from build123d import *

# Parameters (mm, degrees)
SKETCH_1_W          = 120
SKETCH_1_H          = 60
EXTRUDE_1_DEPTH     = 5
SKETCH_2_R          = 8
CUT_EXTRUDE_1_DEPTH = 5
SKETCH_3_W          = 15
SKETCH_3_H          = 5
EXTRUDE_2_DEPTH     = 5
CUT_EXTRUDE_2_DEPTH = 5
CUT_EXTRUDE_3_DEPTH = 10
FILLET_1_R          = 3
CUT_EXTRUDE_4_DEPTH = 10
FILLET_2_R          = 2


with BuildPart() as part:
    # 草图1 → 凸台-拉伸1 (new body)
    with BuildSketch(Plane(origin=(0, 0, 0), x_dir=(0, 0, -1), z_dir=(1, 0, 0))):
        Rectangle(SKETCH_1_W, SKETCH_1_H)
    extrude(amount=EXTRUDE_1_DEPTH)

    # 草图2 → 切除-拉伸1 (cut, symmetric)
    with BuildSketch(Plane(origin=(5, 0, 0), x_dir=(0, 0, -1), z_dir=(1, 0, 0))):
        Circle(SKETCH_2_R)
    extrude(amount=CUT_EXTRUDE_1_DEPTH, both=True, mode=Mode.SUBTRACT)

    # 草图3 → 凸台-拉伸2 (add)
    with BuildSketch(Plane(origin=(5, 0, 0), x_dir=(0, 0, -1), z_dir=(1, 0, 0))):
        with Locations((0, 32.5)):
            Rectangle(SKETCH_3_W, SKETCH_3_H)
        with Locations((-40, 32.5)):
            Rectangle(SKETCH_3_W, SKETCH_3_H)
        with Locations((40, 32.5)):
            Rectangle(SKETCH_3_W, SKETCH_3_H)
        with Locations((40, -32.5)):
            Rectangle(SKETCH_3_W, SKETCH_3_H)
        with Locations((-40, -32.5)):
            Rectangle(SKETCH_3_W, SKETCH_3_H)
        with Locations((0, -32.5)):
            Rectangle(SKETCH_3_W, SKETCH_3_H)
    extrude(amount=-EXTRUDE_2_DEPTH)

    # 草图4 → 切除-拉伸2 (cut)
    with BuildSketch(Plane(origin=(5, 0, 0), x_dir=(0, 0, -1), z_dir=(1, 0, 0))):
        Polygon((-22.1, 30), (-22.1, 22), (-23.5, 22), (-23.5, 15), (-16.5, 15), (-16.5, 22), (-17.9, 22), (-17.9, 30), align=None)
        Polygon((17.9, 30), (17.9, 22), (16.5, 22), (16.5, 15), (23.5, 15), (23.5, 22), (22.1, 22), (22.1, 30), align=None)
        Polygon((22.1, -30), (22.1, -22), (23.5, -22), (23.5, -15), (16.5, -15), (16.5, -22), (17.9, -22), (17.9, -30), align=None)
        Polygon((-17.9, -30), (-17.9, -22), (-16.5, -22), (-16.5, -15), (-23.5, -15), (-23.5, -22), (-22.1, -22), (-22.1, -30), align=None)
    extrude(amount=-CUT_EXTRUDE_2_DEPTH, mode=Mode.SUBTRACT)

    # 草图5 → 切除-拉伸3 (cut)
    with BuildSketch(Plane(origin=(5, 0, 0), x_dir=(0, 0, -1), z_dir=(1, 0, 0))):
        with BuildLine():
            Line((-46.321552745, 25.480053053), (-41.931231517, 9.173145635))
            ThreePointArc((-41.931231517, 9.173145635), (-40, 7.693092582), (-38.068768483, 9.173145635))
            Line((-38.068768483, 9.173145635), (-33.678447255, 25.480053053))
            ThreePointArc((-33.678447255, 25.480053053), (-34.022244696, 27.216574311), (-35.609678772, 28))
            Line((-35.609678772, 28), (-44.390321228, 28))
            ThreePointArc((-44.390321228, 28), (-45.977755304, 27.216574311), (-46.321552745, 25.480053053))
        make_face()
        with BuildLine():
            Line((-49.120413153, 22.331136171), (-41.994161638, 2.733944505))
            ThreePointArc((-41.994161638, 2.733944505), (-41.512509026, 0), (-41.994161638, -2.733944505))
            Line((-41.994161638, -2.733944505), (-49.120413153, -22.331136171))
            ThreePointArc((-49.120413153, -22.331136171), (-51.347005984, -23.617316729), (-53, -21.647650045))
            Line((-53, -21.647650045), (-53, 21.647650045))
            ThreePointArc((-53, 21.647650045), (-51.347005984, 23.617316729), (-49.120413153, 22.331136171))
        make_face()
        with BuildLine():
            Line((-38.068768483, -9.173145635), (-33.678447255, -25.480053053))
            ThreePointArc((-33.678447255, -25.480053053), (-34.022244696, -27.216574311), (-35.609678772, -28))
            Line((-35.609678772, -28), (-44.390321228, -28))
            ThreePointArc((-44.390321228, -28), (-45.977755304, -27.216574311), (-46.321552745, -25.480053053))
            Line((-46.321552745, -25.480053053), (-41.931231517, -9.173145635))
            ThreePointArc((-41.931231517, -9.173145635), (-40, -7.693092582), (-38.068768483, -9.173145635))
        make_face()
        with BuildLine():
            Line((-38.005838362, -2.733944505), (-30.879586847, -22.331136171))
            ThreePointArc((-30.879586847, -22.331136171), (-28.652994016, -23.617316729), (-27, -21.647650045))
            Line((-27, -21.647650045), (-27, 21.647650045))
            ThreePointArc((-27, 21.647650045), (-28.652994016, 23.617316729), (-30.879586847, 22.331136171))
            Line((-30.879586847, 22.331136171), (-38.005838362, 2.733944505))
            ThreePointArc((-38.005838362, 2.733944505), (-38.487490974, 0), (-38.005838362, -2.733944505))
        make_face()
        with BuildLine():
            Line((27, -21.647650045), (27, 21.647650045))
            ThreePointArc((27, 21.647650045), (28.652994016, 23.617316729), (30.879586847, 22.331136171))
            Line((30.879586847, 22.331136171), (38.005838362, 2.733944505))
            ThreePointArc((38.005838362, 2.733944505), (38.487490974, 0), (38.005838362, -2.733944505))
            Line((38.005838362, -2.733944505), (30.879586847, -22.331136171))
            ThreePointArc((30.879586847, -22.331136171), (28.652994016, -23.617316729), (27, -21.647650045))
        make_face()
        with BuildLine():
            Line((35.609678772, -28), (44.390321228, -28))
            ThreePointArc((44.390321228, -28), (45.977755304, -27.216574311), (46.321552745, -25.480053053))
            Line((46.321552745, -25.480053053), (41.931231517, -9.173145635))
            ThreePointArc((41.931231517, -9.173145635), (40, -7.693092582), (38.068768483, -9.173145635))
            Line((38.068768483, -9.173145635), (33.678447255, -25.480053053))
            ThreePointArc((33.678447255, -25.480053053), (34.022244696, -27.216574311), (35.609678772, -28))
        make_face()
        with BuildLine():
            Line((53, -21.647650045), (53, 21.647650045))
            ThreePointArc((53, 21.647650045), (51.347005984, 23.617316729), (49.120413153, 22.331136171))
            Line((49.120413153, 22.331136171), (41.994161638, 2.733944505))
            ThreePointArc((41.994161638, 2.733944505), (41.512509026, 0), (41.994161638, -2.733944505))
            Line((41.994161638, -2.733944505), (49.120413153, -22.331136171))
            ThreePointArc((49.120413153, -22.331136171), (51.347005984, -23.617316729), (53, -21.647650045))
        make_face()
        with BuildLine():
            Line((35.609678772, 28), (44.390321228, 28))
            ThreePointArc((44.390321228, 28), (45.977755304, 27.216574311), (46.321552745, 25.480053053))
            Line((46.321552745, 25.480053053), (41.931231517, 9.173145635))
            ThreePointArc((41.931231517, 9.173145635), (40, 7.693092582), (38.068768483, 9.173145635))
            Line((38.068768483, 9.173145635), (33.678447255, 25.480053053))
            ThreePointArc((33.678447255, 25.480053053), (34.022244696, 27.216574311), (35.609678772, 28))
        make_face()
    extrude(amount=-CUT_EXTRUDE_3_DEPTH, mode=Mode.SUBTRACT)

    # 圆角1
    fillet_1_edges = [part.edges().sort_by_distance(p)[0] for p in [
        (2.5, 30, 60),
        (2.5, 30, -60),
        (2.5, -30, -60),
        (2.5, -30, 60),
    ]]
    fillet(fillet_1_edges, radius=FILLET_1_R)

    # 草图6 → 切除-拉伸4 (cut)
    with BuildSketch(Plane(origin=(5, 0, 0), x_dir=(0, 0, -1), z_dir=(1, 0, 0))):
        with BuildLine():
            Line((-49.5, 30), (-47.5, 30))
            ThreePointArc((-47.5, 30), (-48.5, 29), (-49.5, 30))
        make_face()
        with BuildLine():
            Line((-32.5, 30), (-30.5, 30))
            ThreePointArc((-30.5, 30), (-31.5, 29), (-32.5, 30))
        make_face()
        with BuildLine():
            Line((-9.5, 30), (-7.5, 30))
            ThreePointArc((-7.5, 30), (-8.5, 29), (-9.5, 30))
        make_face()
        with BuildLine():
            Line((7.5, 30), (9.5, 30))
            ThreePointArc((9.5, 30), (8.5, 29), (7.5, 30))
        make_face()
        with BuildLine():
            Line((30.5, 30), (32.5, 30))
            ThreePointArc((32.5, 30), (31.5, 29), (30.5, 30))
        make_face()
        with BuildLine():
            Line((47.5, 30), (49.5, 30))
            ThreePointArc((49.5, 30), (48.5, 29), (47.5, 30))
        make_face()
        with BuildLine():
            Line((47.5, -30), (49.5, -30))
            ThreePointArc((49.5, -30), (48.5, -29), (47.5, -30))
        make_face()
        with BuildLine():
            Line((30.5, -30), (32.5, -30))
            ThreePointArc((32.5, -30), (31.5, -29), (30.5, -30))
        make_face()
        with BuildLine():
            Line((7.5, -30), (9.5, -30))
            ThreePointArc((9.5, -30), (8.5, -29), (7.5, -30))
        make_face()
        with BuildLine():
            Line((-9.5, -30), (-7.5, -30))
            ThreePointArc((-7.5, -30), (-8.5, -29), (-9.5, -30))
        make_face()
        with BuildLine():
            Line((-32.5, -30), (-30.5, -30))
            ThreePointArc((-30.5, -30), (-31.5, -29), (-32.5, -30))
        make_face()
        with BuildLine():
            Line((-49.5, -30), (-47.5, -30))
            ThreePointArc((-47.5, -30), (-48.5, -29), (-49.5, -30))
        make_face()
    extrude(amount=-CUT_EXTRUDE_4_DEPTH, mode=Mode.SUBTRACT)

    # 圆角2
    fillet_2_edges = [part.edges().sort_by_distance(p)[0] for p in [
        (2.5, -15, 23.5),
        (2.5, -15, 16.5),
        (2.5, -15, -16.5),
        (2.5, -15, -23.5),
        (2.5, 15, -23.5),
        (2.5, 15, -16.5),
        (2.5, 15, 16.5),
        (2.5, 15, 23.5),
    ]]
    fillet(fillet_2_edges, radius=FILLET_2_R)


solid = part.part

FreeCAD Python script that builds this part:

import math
import FreeCAD as App
import Part
import Sketcher

V = App.Vector
Q = App.Units.Quantity


def edges_at(feature, points):
    """Names of the edges that pass closest to the given points."""
    edges = feature.Shape.Edges
    near = lambda p: min(range(len(edges)), key=lambda i: edges[i].distToShape(Part.Vertex(*p))[0])
    return sorted({f"Edge{near(p) + 1}" for p in points})

doc = App.newDocument("Part")
body = doc.addObject("PartDesign::Body", "Body")

# Sketch on YZ plane
sketch1 = doc.addObject("Sketcher::SketchObject", "Sketch")
body.addObject(sketch1)
sketch1.AttachmentSupport = (doc.YZ_Plane, [""])
sketch1.MapMode = "FlatFace"
sketch1.addGeometry([
    Part.LineSegment(V(30, 60, 0), V(-30, 60, 0)),
    Part.LineSegment(V(-30, 60, 0), V(-30, -60, 0)),
    Part.LineSegment(V(-30, -60, 0), V(30, -60, 0)),
    Part.LineSegment(V(30, -60, 0), V(30, 60, 0)),
], False)
sketch1.addConstraint([
    Sketcher.Constraint("Coincident", 0, 2, 1, 1),
    Sketcher.Constraint("Coincident", 1, 2, 2, 1),
    Sketcher.Constraint("Coincident", 2, 2, 3, 1),
    Sketcher.Constraint("Coincident", 3, 2, 0, 1),
    Sketcher.Constraint("Horizontal", 0),
    Sketcher.Constraint("Vertical", 1),
    Sketcher.Constraint("Horizontal", 2),
    Sketcher.Constraint("Vertical", 3),
    Sketcher.Constraint("Symmetric", 0, 2, 2, 2, -1, 1),
    Sketcher.Constraint("DistanceX", 0, 2, 0, 1, Q("60 mm")),
    Sketcher.Constraint("DistanceY", 1, 2, 1, 1, Q("120 mm")),
])
pad1 = doc.addObject("PartDesign::Pad", "Pad")
body.addObject(pad1)
pad1.Profile = sketch1
pad1.Length = 5

# Sketch on YZ plane
sketch2 = doc.addObject("Sketcher::SketchObject", "Sketch001")
body.addObject(sketch2)
sketch2.AttachmentSupport = (doc.YZ_Plane, [""])
sketch2.MapMode = "FlatFace"
sketch2.AttachmentOffset = App.Placement(V(0, 0, 5), App.Rotation())
sketch2.addGeometry(Part.Circle(V(0, 0, 0), V(0, 0, 1), 8), False)
sketch2.addConstraint([
    Sketcher.Constraint("Coincident", 0, 3, -1, 1),
    Sketcher.Constraint("Diameter", 0, Q("16 mm")),
])
pocket1 = doc.addObject("PartDesign::Pocket", "Pocket")
body.addObject(pocket1)
pocket1.Profile = sketch2
pocket1.Length = 10
pocket1.Midplane = True

# Sketch on YZ plane
sketch3 = doc.addObject("Sketcher::SketchObject", "Sketch002")
body.addObject(sketch3)
sketch3.AttachmentSupport = (doc.YZ_Plane, [""])
sketch3.MapMode = "FlatFace"
sketch3.AttachmentOffset = App.Placement(V(0, 0, 5), App.Rotation())
sketch3.addGeometry([
    Part.LineSegment(V(35, 7.5, 0), V(30, 7.5, 0)),  # 0
    Part.LineSegment(V(30, 7.5, 0), V(30, -7.5, 0)),  # 1
    Part.LineSegment(V(30, -7.5, 0), V(35, -7.5, 0)),  # 2
    Part.LineSegment(V(35, -7.5, 0), V(35, 7.5, 0)),  # 3
    Part.LineSegment(V(35, 47.5, 0), V(30, 47.5, 0)),  # 4
    Part.LineSegment(V(30, 47.5, 0), V(30, 32.5, 0)),  # 5
    Part.LineSegment(V(30, 32.5, 0), V(35, 32.5, 0)),  # 6
    Part.LineSegment(V(35, 32.5, 0), V(35, 47.5, 0)),  # 7
    Part.LineSegment(V(35, -32.5, 0), V(30, -32.5, 0)),  # 8
    Part.LineSegment(V(30, -32.5, 0), V(30, -47.5, 0)),  # 9
    Part.LineSegment(V(30, -47.5, 0), V(35, -47.5, 0)),  # 10
    Part.LineSegment(V(35, -47.5, 0), V(35, -32.5, 0)),  # 11
    Part.LineSegment(V(-30, -32.5, 0), V(-35, -32.5, 0)),  # 12
    Part.LineSegment(V(-35, -32.5, 0), V(-35, -47.5, 0)),  # 13
    Part.LineSegment(V(-35, -47.5, 0), V(-30, -47.5, 0)),  # 14
    Part.LineSegment(V(-30, -47.5, 0), V(-30, -32.5, 0)),  # 15
    Part.LineSegment(V(-30, 47.5, 0), V(-35, 47.5, 0)),  # 16
    Part.LineSegment(V(-35, 47.5, 0), V(-35, 32.5, 0)),  # 17
    Part.LineSegment(V(-35, 32.5, 0), V(-30, 32.5, 0)),  # 18
    Part.LineSegment(V(-30, 32.5, 0), V(-30, 47.5, 0)),  # 19
    Part.LineSegment(V(-30, 7.5, 0), V(-35, 7.5, 0)),  # 20
    Part.LineSegment(V(-35, 7.5, 0), V(-35, -7.5, 0)),  # 21
    Part.LineSegment(V(-35, -7.5, 0), V(-30, -7.5, 0)),  # 22
    Part.LineSegment(V(-30, -7.5, 0), V(-30, 7.5, 0)),  # 23
], False)
sketch3.addConstraint([
    Sketcher.Constraint("Coincident", 0, 2, 1, 1),
    Sketcher.Constraint("Coincident", 1, 2, 2, 1),
    Sketcher.Constraint("Coincident", 2, 2, 3, 1),
    Sketcher.Constraint("Coincident", 3, 2, 0, 1),
    Sketcher.Constraint("Coincident", 4, 2, 5, 1),
    Sketcher.Constraint("Coincident", 5, 2, 6, 1),
    Sketcher.Constraint("Coincident", 6, 2, 7, 1),
    Sketcher.Constraint("Coincident", 7, 2, 4, 1),
    Sketcher.Constraint("Coincident", 8, 2, 9, 1),
    Sketcher.Constraint("Coincident", 9, 2, 10, 1),
    Sketcher.Constraint("Coincident", 10, 2, 11, 1),
    Sketcher.Constraint("Coincident", 11, 2, 8, 1),
    Sketcher.Constraint("Coincident", 12, 2, 13, 1),
    Sketcher.Constraint("Coincident", 13, 2, 14, 1),
    Sketcher.Constraint("Coincident", 14, 2, 15, 1),
    Sketcher.Constraint("Coincident", 15, 2, 12, 1),
    Sketcher.Constraint("Coincident", 16, 2, 17, 1),
    Sketcher.Constraint("Coincident", 17, 2, 18, 1),
    Sketcher.Constraint("Coincident", 18, 2, 19, 1),
    Sketcher.Constraint("Coincident", 19, 2, 16, 1),
    Sketcher.Constraint("Coincident", 20, 2, 21, 1),
    Sketcher.Constraint("Coincident", 21, 2, 22, 1),
    Sketcher.Constraint("Coincident", 22, 2, 23, 1),
    Sketcher.Constraint("Coincident", 23, 2, 20, 1),
    Sketcher.Constraint("Horizontal", 0),
    Sketcher.Constraint("Vertical", 1),
    Sketcher.Constraint("Horizontal", 2),
    Sketcher.Constraint("Vertical", 3),
    Sketcher.Constraint("Horizontal", 4),
    Sketcher.Constraint("Vertical", 5),
    Sketcher.Constraint("Horizontal", 6),
    Sketcher.Constraint("Vertical", 7),
    Sketcher.Constraint("Horizontal", 8),
    Sketcher.Constraint("Vertical", 9),
    Sketcher.Constraint("Horizontal", 10),
    Sketcher.Constraint("Vertical", 11),
    Sketcher.Constraint("Horizontal", 12),
    Sketcher.Constraint("Vertical", 13),
    Sketcher.Constraint("Horizontal", 14),
    Sketcher.Constraint("Vertical", 15),
    Sketcher.Constraint("Horizontal", 16),
    Sketcher.Constraint("Vertical", 17),
    Sketcher.Constraint("Horizontal", 18),
    Sketcher.Constraint("Vertical", 19),
    Sketcher.Constraint("Horizontal", 20),
    Sketcher.Constraint("Vertical", 21),
    Sketcher.Constraint("Horizontal", 22),
    Sketcher.Constraint("Vertical", 23),
    Sketcher.Constraint("Symmetric", 6, 2, 12, 2, -1, 1),
    Sketcher.Constraint("Symmetric", 4, 2, 14, 2, -1, 1),
    Sketcher.Constraint("Symmetric", 10, 2, 16, 2, -1, 1),
    Sketcher.Constraint("Symmetric", 8, 2, 18, 2, -1, 1),
    Sketcher.Constraint("Symmetric", 2, 2, 20, 2, -1, 1),
    Sketcher.Constraint("Symmetric", 0, 2, 22, 2, -1, 1),
    Sketcher.Constraint("Symmetric", 11, 2, 12, 2, -2),
    Sketcher.Constraint("Symmetric", 9, 2, 14, 2, -2),
    Sketcher.Constraint("Horizontal", 3, 2, 20, 2),
    Sketcher.Constraint("Vertical", 1, 2, 4, 2),
    Sketcher.Constraint("Vertical", 3, 2, 6, 2),
    Sketcher.Constraint("Equal", 3, 5),
    Sketcher.Constraint("DistanceX", 0, 2, 0, 1, Q("5 mm")),
    Sketcher.Constraint("DistanceY", 1, 2, 1, 1, Q("15 mm")),
    Sketcher.Constraint("DistanceX", -1, 1, 0, 2, Q("30 mm")),
    Sketcher.Constraint("DistanceY", 0, 2, 4, 2, Q("40 mm")),
])
pad2 = doc.addObject("PartDesign::Pad", "Pad001")
body.addObject(pad2)
pad2.Profile = sketch3
pad2.Length = 5
pad2.Reversed = True

# Sketch on YZ plane
sketch4 = doc.addObject("Sketcher::SketchObject", "Sketch003")
body.addObject(sketch4)
sketch4.AttachmentSupport = (doc.YZ_Plane, [""])
sketch4.MapMode = "FlatFace"
sketch4.AttachmentOffset = App.Placement(V(0, 0, 5), App.Rotation())
sketch4.addGeometry([
    Part.LineSegment(V(30, 22.1, 0), V(22, 22.1, 0)),  # 0
    Part.LineSegment(V(22, 22.1, 0), V(22, 23.5, 0)),  # 1
    Part.LineSegment(V(22, 23.5, 0), V(15, 23.5, 0)),  # 2
    Part.LineSegment(V(15, 23.5, 0), V(15, 16.5, 0)),  # 3
    Part.LineSegment(V(15, 16.5, 0), V(22, 16.5, 0)),  # 4
    Part.LineSegment(V(22, 16.5, 0), V(22, 17.9, 0)),  # 5
    Part.LineSegment(V(22, 17.9, 0), V(30, 17.9, 0)),  # 6
    Part.LineSegment(V(30, 17.9, 0), V(30, 22.1, 0)),  # 7
    Part.LineSegment(V(30, -17.9, 0), V(22, -17.9, 0)),  # 8
    Part.LineSegment(V(22, -17.9, 0), V(22, -16.5, 0)),  # 9
    Part.LineSegment(V(22, -16.5, 0), V(15, -16.5, 0)),  # 10
    Part.LineSegment(V(15, -16.5, 0), V(15, -23.5, 0)),  # 11
    Part.LineSegment(V(15, -23.5, 0), V(22, -23.5, 0)),  # 12
    Part.LineSegment(V(22, -23.5, 0), V(22, -22.1, 0)),  # 13
    Part.LineSegment(V(22, -22.1, 0), V(30, -22.1, 0)),  # 14
    Part.LineSegment(V(30, -22.1, 0), V(30, -17.9, 0)),  # 15
    Part.LineSegment(V(-30, -22.1, 0), V(-22, -22.1, 0)),  # 16
    Part.LineSegment(V(-22, -22.1, 0), V(-22, -23.5, 0)),  # 17
    Part.LineSegment(V(-22, -23.5, 0), V(-15, -23.5, 0)),  # 18
    Part.LineSegment(V(-15, -23.5, 0), V(-15, -16.5, 0)),  # 19
    Part.LineSegment(V(-15, -16.5, 0), V(-22, -16.5, 0)),  # 20
    Part.LineSegment(V(-22, -16.5, 0), V(-22, -17.9, 0)),  # 21
    Part.LineSegment(V(-22, -17.9, 0), V(-30, -17.9, 0)),  # 22
    Part.LineSegment(V(-30, -17.9, 0), V(-30, -22.1, 0)),  # 23
    Part.LineSegment(V(-30, 17.9, 0), V(-22, 17.9, 0)),  # 24
    Part.LineSegment(V(-22, 17.9, 0), V(-22, 16.5, 0)),  # 25
    Part.LineSegment(V(-22, 16.5, 0), V(-15, 16.5, 0)),  # 26
    Part.LineSegment(V(-15, 16.5, 0), V(-15, 23.5, 0)),  # 27
    Part.LineSegment(V(-15, 23.5, 0), V(-22, 23.5, 0)),  # 28
    Part.LineSegment(V(-22, 23.5, 0), V(-22, 22.1, 0)),  # 29
    Part.LineSegment(V(-22, 22.1, 0), V(-30, 22.1, 0)),  # 30
    Part.LineSegment(V(-30, 22.1, 0), V(-30, 17.9, 0)),  # 31
], False)
sketch4.addConstraint([
    Sketcher.Constraint("Coincident", 0, 2, 1, 1),
    Sketcher.Constraint("Coincident", 1, 2, 2, 1),
    Sketcher.Constraint("Coincident", 2, 2, 3, 1),
    Sketcher.Constraint("Coincident", 3, 2, 4, 1),
    Sketcher.Constraint("Coincident", 4, 2, 5, 1),
    Sketcher.Constraint("Coincident", 5, 2, 6, 1),
    Sketcher.Constraint("Coincident", 6, 2, 7, 1),
    Sketcher.Constraint("Coincident", 7, 2, 0, 1),
    Sketcher.Constraint("Coincident", 8, 2, 9, 1),
    Sketcher.Constraint("Coincident", 9, 2, 10, 1),
    Sketcher.Constraint("Coincident", 10, 2, 11, 1),
    Sketcher.Constraint("Coincident", 11, 2, 12, 1),
    Sketcher.Constraint("Coincident", 12, 2, 13, 1),
    Sketcher.Constraint("Coincident", 13, 2, 14, 1),
    Sketcher.Constraint("Coincident", 14, 2, 15, 1),
    Sketcher.Constraint("Coincident", 15, 2, 8, 1),
    Sketcher.Constraint("Coincident", 16, 2, 17, 1),
    Sketcher.Constraint("Coincident", 17, 2, 18, 1),
    Sketcher.Constraint("Coincident", 18, 2, 19, 1),
    Sketcher.Constraint("Coincident", 19, 2, 20, 1),
    Sketcher.Constraint("Coincident", 20, 2, 21, 1),
    Sketcher.Constraint("Coincident", 21, 2, 22, 1),
    Sketcher.Constraint("Coincident", 22, 2, 23, 1),
    Sketcher.Constraint("Coincident", 23, 2, 16, 1),
    Sketcher.Constraint("Coincident", 24, 2, 25, 1),
    Sketcher.Constraint("Coincident", 25, 2, 26, 1),
    Sketcher.Constraint("Coincident", 26, 2, 27, 1),
    Sketcher.Constraint("Coincident", 27, 2, 28, 1),
    Sketcher.Constraint("Coincident", 28, 2, 29, 1),
    Sketcher.Constraint("Coincident", 29, 2, 30, 1),
    Sketcher.Constraint("Coincident", 30, 2, 31, 1),
    Sketcher.Constraint("Coincident", 31, 2, 24, 1),
    Sketcher.Constraint("Horizontal", 0),
    Sketcher.Constraint("Vertical", 1),
    Sketcher.Constraint("Horizontal", 2),
    Sketcher.Constraint("Vertical", 3),
    Sketcher.Constraint("Horizontal", 4),
    Sketcher.Constraint("Vertical", 5),
    Sketcher.Constraint("Horizontal", 6),
    Sketcher.Constraint("Vertical", 7),
    Sketcher.Constraint("Horizontal", 8),
    Sketcher.Constraint("Vertical", 9),
    Sketcher.Constraint("Horizontal", 10),
    Sketcher.Constraint("Vertical", 11),
    Sketcher.Constraint("Horizontal", 12),
    Sketcher.Constraint("Vertical", 13),
    Sketcher.Constraint("Horizontal", 14),
    Sketcher.Constraint("Vertical", 15),
    Sketcher.Constraint("Horizontal", 16),
    Sketcher.Constraint("Vertical", 17),
    Sketcher.Constraint("Horizontal", 18),
    Sketcher.Constraint("Vertical", 19),
    Sketcher.Constraint("Horizontal", 20),
    Sketcher.Constraint("Vertical", 21),
    Sketcher.Constraint("Horizontal", 22),
    Sketcher.Constraint("Vertical", 23),
    Sketcher.Constraint("Horizontal", 24),
    Sketcher.Constraint("Vertical", 25),
    Sketcher.Constraint("Horizontal", 26),
    Sketcher.Constraint("Vertical", 27),
    Sketcher.Constraint("Horizontal", 28),
    Sketcher.Constraint("Vertical", 29),
    Sketcher.Constraint("Horizontal", 30),
    Sketcher.Constraint("Vertical", 31),
    Sketcher.Constraint("Symmetric", 0, 2, 16, 2, -1, 1),
    Sketcher.Constraint("Symmetric", 2, 2, 18, 2, -1, 1),
    Sketcher.Constraint("Symmetric", 4, 2, 20, 2, -1, 1),
    Sketcher.Constraint("Symmetric", 6, 2, 22, 2, -1, 1),
    Sketcher.Constraint("Symmetric", 8, 2, 24, 2, -1, 1),
    Sketcher.Constraint("Symmetric", 10, 2, 26, 2, -1, 1),
    Sketcher.Constraint("Symmetric", 12, 2, 28, 2, -1, 1),
    Sketcher.Constraint("Symmetric", 14, 2, 30, 2, -1, 1),
    Sketcher.Constraint("Symmetric", 13, 2, 16, 2, -2),
    Sketcher.Constraint("Symmetric", 11, 2, 18, 2, -2),
    Sketcher.Constraint("Symmetric", 9, 2, 20, 2, -2),
    Sketcher.Constraint("Symmetric", 15, 2, 22, 2, -2),
    Sketcher.Constraint("Vertical", 1, 2, 4, 2),
    Sketcher.Constraint("Equal", 28, 3),
    Sketcher.Constraint("Equal", 1, 5),
    Sketcher.Constraint("DistanceX", 0, 2, 0, 1, Q("8 mm")),
    Sketcher.Constraint("DistanceX", 2, 2, 2, 1, Q("7 mm")),
    Sketcher.Constraint("DistanceY", 1, 1, 1, 2, Q("1.4 mm")),
    Sketcher.Constraint("DistanceX", -1, 1, 0, 2, Q("22 mm")),
    Sketcher.Constraint("DistanceY", 8, 2, 0, 2, Q("40 mm")),
])
pocket2 = doc.addObject("PartDesign::Pocket", "Pocket001")
body.addObject(pocket2)
pocket2.Profile = sketch4
pocket2.Length = 5

# Sketch on YZ plane
sketch5 = doc.addObject("Sketcher::SketchObject", "Sketch004")
body.addObject(sketch5)
sketch5.AttachmentSupport = (doc.YZ_Plane, [""])
sketch5.MapMode = "FlatFace"
sketch5.AttachmentOffset = App.Placement(V(0, 0, 5), App.Rotation())
sketch5.addGeometry([
    Part.LineSegment(V(25.480053, 46.321553, 0), V(9.173146, 41.931232, 0)),  # 0
    Part.ArcOfCircle(Part.Circle(V(9.693093, 40, 0), V(0, 0, 1), 2), math.radians(105.068488), math.radians(254.931512)),  # 1
    Part.LineSegment(V(9.173146, 38.068768, 0), V(25.480053, 33.678447, 0)),  # 2
    Part.ArcOfCircle(Part.Circle(V(26, 35.609679, 0), V(0, 0, 1), 2), math.radians(-105.068488), math.radians(0)),  # 3
    Part.LineSegment(V(28, 35.609679, 0), V(28, 44.390321, 0)),  # 4
    Part.ArcOfCircle(Part.Circle(V(26, 44.390321, 0), V(0, 0, 1), 2), math.radians(0), math.radians(105.068488)),  # 5
    Part.LineSegment(V(2.733945, 41.994162, 0), V(22.331136, 49.120413, 0)),  # 6
    Part.ArcOfCircle(Part.Circle(V(21.64765, 51, 0), V(0, 0, 1), 2), math.radians(-70.016893), math.radians(90)),  # 7
    Part.LineSegment(V(21.64765, 53, 0), V(-21.64765, 53, 0)),  # 8
    Part.ArcOfCircle(Part.Circle(V(-21.64765, 51, 0), V(0, 0, 1), 2), math.radians(90), math.radians(250.016893)),  # 9
    Part.LineSegment(V(-22.331136, 49.120413, 0), V(-2.733945, 41.994162, 0)),  # 10
    Part.ArcOfCircle(Part.Circle(V(0, 49.512509, 0), V(0, 0, 1), 8), math.radians(-109.983107), math.radians(-70.016893)),  # 11
    Part.LineSegment(V(-25.480053, 33.678447, 0), V(-9.173146, 38.068768, 0)),  # 12
    Part.ArcOfCircle(Part.Circle(V(-9.693093, 40, 0), V(0, 0, 1), 2), math.radians(-74.931512), math.radians(74.931512)),  # 13
    Part.LineSegment(V(-9.173146, 41.931232, 0), V(-25.480053, 46.321553, 0)),  # 14
    Part.ArcOfCircle(Part.Circle(V(-26, 44.390321, 0), V(0, 0, 1), 2), math.radians(74.931512), math.radians(180)),  # 15
    Part.LineSegment(V(-28, 44.390321, 0), V(-28, 35.609679, 0)),  # 16
    Part.ArcOfCircle(Part.Circle(V(-26, 35.609679, 0), V(0, 0, 1), 2), math.radians(180), math.radians(285.068488)),  # 17
    Part.LineSegment(V(-2.733945, 38.005838, 0), V(-22.331136, 30.879587, 0)),  # 18
    Part.ArcOfCircle(Part.Circle(V(-21.64765, 29, 0), V(0, 0, 1), 2), math.radians(109.983107), math.radians(270)),  # 19
    Part.LineSegment(V(-21.64765, 27, 0), V(21.64765, 27, 0)),  # 20
    Part.ArcOfCircle(Part.Circle(V(21.64765, 29, 0), V(0, 0, 1), 2), math.radians(-90), math.radians(70.016893)),  # 21
    Part.LineSegment(V(22.331136, 30.879587, 0), V(2.733945, 38.005838, 0)),  # 22
    Part.ArcOfCircle(Part.Circle(V(0, 30.487491, 0), V(0, 0, 1), 8), math.radians(70.016893), math.radians(109.983107)),  # 23
    Part.LineSegment(V(21.64765, -27, 0), V(-21.64765, -27, 0)),  # 24
    Part.ArcOfCircle(Part.Circle(V(-21.64765, -29, 0), V(0, 0, 1), 2), math.radians(90), math.radians(250.016893)),  # 25
    Part.LineSegment(V(-22.331136, -30.879587, 0), V(-2.733945, -38.005838, 0)),  # 26
    Part.ArcOfCircle(Part.Circle(V(0, -30.487491, 0), V(0, 0, 1), 8), math.radians(-109.983107), math.radians(-70.016893)),  # 27
    Part.LineSegment(V(2.733945, -38.005838, 0), V(22.331136, -30.879587, 0)),  # 28
    Part.ArcOfCircle(Part.Circle(V(21.64765, -29, 0), V(0, 0, 1), 2), math.radians(-70.016893), math.radians(90)),  # 29
    Part.LineSegment(V(-28, -35.609679, 0), V(-28, -44.390321, 0)),  # 30
    Part.ArcOfCircle(Part.Circle(V(-26, -44.390321, 0), V(0, 0, 1), 2), math.radians(180), math.radians(285.068488)),  # 31
    Part.LineSegment(V(-25.480053, -46.321553, 0), V(-9.173146, -41.931232, 0)),  # 32
    Part.ArcOfCircle(Part.Circle(V(-9.693093, -40, 0), V(0, 0, 1), 2), math.radians(-74.931512), math.radians(74.931512)),  # 33
    Part.LineSegment(V(-9.173146, -38.068768, 0), V(-25.480053, -33.678447, 0)),  # 34
    Part.ArcOfCircle(Part.Circle(V(-26, -35.609679, 0), V(0, 0, 1), 2), math.radians(74.931512), math.radians(180)),  # 35
    Part.LineSegment(V(-21.64765, -53, 0), V(21.64765, -53, 0)),  # 36
    Part.ArcOfCircle(Part.Circle(V(21.64765, -51, 0), V(0, 0, 1), 2), math.radians(-90), math.radians(70.016893)),  # 37
    Part.LineSegment(V(22.331136, -49.120413, 0), V(2.733945, -41.994162, 0)),  # 38
    Part.ArcOfCircle(Part.Circle(V(0, -49.512509, 0), V(0, 0, 1), 8), math.radians(70.016893), math.radians(109.983107)),  # 39
    Part.LineSegment(V(-2.733945, -41.994162, 0), V(-22.331136, -49.120413, 0)),  # 40
    Part.ArcOfCircle(Part.Circle(V(-21.64765, -51, 0), V(0, 0, 1), 2), math.radians(109.983107), math.radians(270)),  # 41
    Part.LineSegment(V(28, -44.390321, 0), V(28, -35.609679, 0)),  # 42
    Part.ArcOfCircle(Part.Circle(V(26, -35.609679, 0), V(0, 0, 1), 2), math.radians(0), math.radians(105.068488)),  # 43
    Part.LineSegment(V(25.480053, -33.678447, 0), V(9.173146, -38.068768, 0)),  # 44
    Part.ArcOfCircle(Part.Circle(V(9.693093, -40, 0), V(0, 0, 1), 2), math.radians(105.068488), math.radians(254.931512)),  # 45
    Part.LineSegment(V(9.173146, -41.931232, 0), V(25.480053, -46.321553, 0)),  # 46
    Part.ArcOfCircle(Part.Circle(V(26, -44.390321, 0), V(0, 0, 1), 2), math.radians(-105.068488), math.radians(0)),  # 47
], False)
sketch5.addConstraint([
    Sketcher.Constraint("Coincident", 0, 2, 1, 1),
    Sketcher.Constraint("Coincident", 1, 2, 2, 1),
    Sketcher.Constraint("Coincident", 2, 2, 3, 1),
    Sketcher.Constraint("Coincident", 3, 2, 4, 1),
    Sketcher.Constraint("Coincident", 4, 2, 5, 1),
    Sketcher.Constraint("Coincident", 5, 2, 0, 1),
    Sketcher.Constraint("Coincident", 6, 2, 7, 1),
    Sketcher.Constraint("Coincident", 7, 2, 8, 1),
    Sketcher.Constraint("Coincident", 8, 2, 9, 1),
    Sketcher.Constraint("Coincident", 9, 2, 10, 1),
    Sketcher.Constraint("Coincident", 10, 2, 11, 1),
    Sketcher.Constraint("Coincident", 11, 2, 6, 1),
    Sketcher.Constraint("Coincident", 12, 2, 13, 1),
    Sketcher.Constraint("Coincident", 13, 2, 14, 1),
    Sketcher.Constraint("Coincident", 14, 2, 15, 1),
    Sketcher.Constraint("Coincident", 15, 2, 16, 1),
    Sketcher.Constraint("Coincident", 16, 2, 17, 1),
    Sketcher.Constraint("Coincident", 17, 2, 12, 1),
    Sketcher.Constraint("Coincident", 18, 2, 19, 1),
    Sketcher.Constraint("Coincident", 19, 2, 20, 1),
    Sketcher.Constraint("Coincident", 20, 2, 21, 1),
    Sketcher.Constraint("Coincident", 21, 2, 22, 1),
    Sketcher.Constraint("Coincident", 22, 2, 23, 1),
    Sketcher.Constraint("Coincident", 23, 2, 18, 1),
    Sketcher.Constraint("Coincident", 24, 2, 25, 1),
    Sketcher.Constraint("Coincident", 25, 2, 26, 1),
    Sketcher.Constraint("Coincident", 26, 2, 27, 1),
    Sketcher.Constraint("Coincident", 27, 2, 28, 1),
    Sketcher.Constraint("Coincident", 28, 2, 29, 1),
    Sketcher.Constraint("Coincident", 29, 2, 24, 1),
    Sketcher.Constraint("Coincident", 30, 2, 31, 1),
    Sketcher.Constraint("Coincident", 31, 2, 32, 1),
    Sketcher.Constraint("Coincident", 32, 2, 33, 1),
    Sketcher.Constraint("Coincident", 33, 2, 34, 1),
    Sketcher.Constraint("Coincident", 34, 2, 35, 1),
    Sketcher.Constraint("Coincident", 35, 2, 30, 1),
    Sketcher.Constraint("Coincident", 36, 2, 37, 1),
    Sketcher.Constraint("Coincident", 37, 2, 38, 1),
    Sketcher.Constraint("Coincident", 38, 2, 39, 1),
    Sketcher.Constraint("Coincident", 39, 2, 40, 1),
    Sketcher.Constraint("Coincident", 40, 2, 41, 1),
    Sketcher.Constraint("Coincident", 41, 2, 36, 1),
    Sketcher.Constraint("Coincident", 42, 2, 43, 1),
    Sketcher.Constraint("Coincident", 43, 2, 44, 1),
    Sketcher.Constraint("Coincident", 44, 2, 45, 1),
    Sketcher.Constraint("Coincident", 45, 2, 46, 1),
    Sketcher.Constraint("Coincident", 46, 2, 47, 1),
    Sketcher.Constraint("Coincident", 47, 2, 42, 1),
    Sketcher.Constraint("Vertical", 4),
    Sketcher.Constraint("Horizontal", 8),
    Sketcher.Constraint("Vertical", 16),
    Sketcher.Constraint("Horizontal", 20),
    Sketcher.Constraint("Horizontal", 24),
    Sketcher.Constraint("Vertical", 30),
    Sketcher.Constraint("Horizontal", 36),
    Sketcher.Constraint("Vertical", 42),
    Sketcher.Constraint("PointOnObject", 11, 3, -2),
    Sketcher.Constraint("PointOnObject", 23, 3, -2),
    Sketcher.Constraint("PointOnObject", 27, 3, -2),
    Sketcher.Constraint("PointOnObject", 39, 3, -2),
    Sketcher.Constraint("Radius", 1, Q("2 mm")),
    Sketcher.Constraint("Radius", 3, Q("2 mm")),
    Sketcher.Constraint("Radius", 5, Q("2 mm")),
    Sketcher.Constraint("Radius", 7, Q("2 mm")),
    Sketcher.Constraint("Radius", 9, Q("2 mm")),
    Sketcher.Constraint("Radius", 11, Q("8 mm")),
    Sketcher.Constraint("Radius", 13, Q("2 mm")),
    Sketcher.Constraint("Radius", 15, Q("2 mm")),
    Sketcher.Constraint("Radius", 17, Q("2 mm")),
    Sketcher.Constraint("Radius", 19, Q("2 mm")),
    Sketcher.Constraint("Radius", 21, Q("2 mm")),
    Sketcher.Constraint("Radius", 23, Q("8 mm")),
    Sketcher.Constraint("Radius", 25, Q("2 mm")),
    Sketcher.Constraint("Radius", 27, Q("8 mm")),
    Sketcher.Constraint("Radius", 29, Q("2 mm")),
    Sketcher.Constraint("Radius", 31, Q("2 mm")),
    Sketcher.Constraint("Radius", 33, Q("2 mm")),
    Sketcher.Constraint("Radius", 35, Q("2 mm")),
    Sketcher.Constraint("Radius", 37, Q("2 mm")),
    Sketcher.Constraint("Radius", 39, Q("8 mm")),
    Sketcher.Constraint("Radius", 41, Q("2 mm")),
    Sketcher.Constraint("Radius", 43, Q("2 mm")),
    Sketcher.Constraint("Radius", 45, Q("2 mm")),
    Sketcher.Constraint("Radius", 47, Q("2 mm")),
    Sketcher.Constraint("DistanceY", -1, 1, 1, 3, Q("40 mm")),
    Sketcher.Constraint("DistanceX", -1, 1, 3, 3, Q("26 mm")),
    Sketcher.Constraint("DistanceY", -1, 1, 7, 3, Q("51 mm")),
    Sketcher.Constraint("DistanceY", -1, 1, 13, 3, Q("40 mm")),
    Sketcher.Constraint("DistanceX", 15, 3, -1, 1, Q("26 mm")),
    Sketcher.Constraint("DistanceY", -1, 1, 19, 3, Q("29 mm")),
    Sketcher.Constraint("DistanceY", 25, 3, -1, 1, Q("29 mm")),
    Sketcher.Constraint("DistanceX", 31, 3, -1, 1, Q("26 mm")),
    Sketcher.Constraint("DistanceY", 33, 3, -1, 1, Q("40 mm")),
    Sketcher.Constraint("DistanceY", 37, 3, -1, 1, Q("51 mm")),
    Sketcher.Constraint("DistanceX", -1, 1, 43, 3, Q("26 mm")),
    Sketcher.Constraint("DistanceY", 45, 3, -1, 1, Q("40 mm")),
    Sketcher.Constraint("DistanceX", 8, 2, 8, 1, Q("43.2953 mm")),
    Sketcher.Constraint("DistanceX", 20, 1, 20, 2, Q("43.2953 mm")),
    Sketcher.Constraint("DistanceX", 24, 2, 24, 1, Q("43.2953 mm")),
    Sketcher.Constraint("DistanceX", 36, 1, 36, 2, Q("43.2953 mm")),
    Sketcher.Constraint("Distance", 6, Q("20.852659 mm")),
    Sketcher.Constraint("Distance", 10, Q("20.852659 mm")),
    Sketcher.Constraint("Distance", 18, Q("20.852659 mm")),
    Sketcher.Constraint("Distance", 22, Q("20.852659 mm")),
    Sketcher.Constraint("Distance", 26, Q("20.852659 mm")),
    Sketcher.Constraint("Distance", 28, Q("20.852659 mm")),
    Sketcher.Constraint("Distance", 38, Q("20.852659 mm")),
    Sketcher.Constraint("Distance", 40, Q("20.852659 mm")),
    Sketcher.Constraint("DistanceY", 4, 1, 4, 2, Q("8.780642 mm")),
    Sketcher.Constraint("DistanceY", 16, 2, 16, 1, Q("8.780642 mm")),
    Sketcher.Constraint("DistanceY", 30, 2, 30, 1, Q("8.780642 mm")),
    Sketcher.Constraint("DistanceY", 42, 1, 42, 2, Q("8.780642 mm")),
    Sketcher.Constraint("DistanceY", -1, 1, 3, 3, Q("35.609679 mm")),
    Sketcher.Constraint("DistanceY", -1, 1, 5, 3, Q("44.390321 mm")),
    Sketcher.Constraint("DistanceX", -1, 1, 7, 3, Q("21.64765 mm")),
    Sketcher.Constraint("DistanceX", 9, 3, -1, 1, Q("21.64765 mm")),
    Sketcher.Constraint("DistanceY", -1, 1, 11, 3, Q("49.512509 mm")),
    Sketcher.Constraint("DistanceY", -1, 1, 15, 3, Q("44.390321 mm")),
    Sketcher.Constraint("DistanceY", -1, 1, 17, 3, Q("35.609679 mm")),
    Sketcher.Constraint("DistanceX", 19, 3, -1, 1, Q("21.64765 mm")),
    Sketcher.Constraint("DistanceX", -1, 1, 21, 3, Q("21.64765 mm")),
    Sketcher.Constraint("DistanceY", -1, 1, 23, 3, Q("30.487491 mm")),
    Sketcher.Constraint("DistanceX", 25, 3, -1, 1, Q("21.64765 mm")),
    Sketcher.Constraint("DistanceY", 27, 3, -1, 1, Q("30.487491 mm")),
    Sketcher.Constraint("DistanceX", -1, 1, 29, 3, Q("21.64765 mm")),
    Sketcher.Constraint("DistanceY", 31, 3, -1, 1, Q("44.390321 mm")),
    Sketcher.Constraint("DistanceY", 35, 3, -1, 1, Q("35.609679 mm")),
    Sketcher.Constraint("DistanceX", -1, 1, 37, 3, Q("21.64765 mm")),
    Sketcher.Constraint("DistanceY", 39, 3, -1, 1, Q("49.512509 mm")),
    Sketcher.Constraint("DistanceX", 41, 3, -1, 1, Q("21.64765 mm")),
    Sketcher.Constraint("DistanceY", 43, 3, -1, 1, Q("35.609679 mm")),
    Sketcher.Constraint("DistanceY", 47, 3, -1, 1, Q("44.390321 mm")),
    Sketcher.Constraint("DistanceY", -1, 1, 0, 2, Q("41.931232 mm")),
    Sketcher.Constraint("DistanceY", -1, 1, 1, 2, Q("38.068768 mm")),
    Sketcher.Constraint("DistanceY", -1, 1, 3, 2, Q("35.609679 mm")),
    Sketcher.Constraint("DistanceX", -1, 1, 7, 2, Q("21.64765 mm")),
    Sketcher.Constraint("DistanceY", -1, 1, 10, 2, Q("41.994162 mm")),
    Sketcher.Constraint("DistanceY", -1, 1, 11, 2, Q("41.994162 mm")),
    Sketcher.Constraint("DistanceY", -1, 1, 12, 2, Q("38.068768 mm")),
    Sketcher.Constraint("DistanceY", -1, 1, 13, 2, Q("41.931232 mm")),
    Sketcher.Constraint("DistanceY", -1, 1, 15, 2, Q("44.390321 mm")),
    Sketcher.Constraint("DistanceX", 19, 2, -1, 1, Q("21.64765 mm")),
    Sketcher.Constraint("DistanceY", -1, 1, 22, 2, Q("38.005838 mm")),
    Sketcher.Constraint("DistanceY", -1, 1, 23, 2, Q("38.005838 mm")),
    Sketcher.Constraint("DistanceX", 24, 2, -1, 1, Q("21.64765 mm")),
    Sketcher.Constraint("DistanceY", 26, 2, -1, 1, Q("38.005838 mm")),
    Sketcher.Constraint("DistanceY", 27, 2, -1, 1, Q("38.005838 mm")),
    Sketcher.Constraint("DistanceY", 30, 2, -1, 1, Q("44.390321 mm")),
    Sketcher.Constraint("DistanceY", 32, 2, -1, 1, Q("41.931232 mm")),
    Sketcher.Constraint("DistanceY", 33, 2, -1, 1, Q("38.068768 mm")),
    Sketcher.Constraint("DistanceX", -1, 1, 36, 2, Q("21.64765 mm")),
    Sketcher.Constraint("DistanceY", 38, 2, -1, 1, Q("41.994162 mm")),
    Sketcher.Constraint("DistanceY", 39, 2, -1, 1, Q("41.994162 mm")),
    Sketcher.Constraint("DistanceY", 42, 2, -1, 1, Q("35.609679 mm")),
    Sketcher.Constraint("DistanceY", 44, 2, -1, 1, Q("38.068768 mm")),
    Sketcher.Constraint("DistanceY", 45, 2, -1, 1, Q("41.931232 mm")),
    Sketcher.Constraint("Distance", 0, Q("16.887574 mm")),
    Sketcher.Constraint("Distance", 2, Q("16.887574 mm")),
    Sketcher.Constraint("Distance", 12, Q("16.887574 mm")),
    Sketcher.Constraint("Distance", 14, Q("16.887574 mm")),
    Sketcher.Constraint("Distance", 32, Q("16.887574 mm")),
    Sketcher.Constraint("Distance", 34, Q("16.887574 mm")),
    Sketcher.Constraint("Distance", 44, Q("16.887574 mm")),
    Sketcher.Constraint("Distance", 46, Q("16.887574 mm")),
    Sketcher.Constraint("DistanceX", -1, 1, 1, 3, Q("9.693093 mm")),
    Sketcher.Constraint("DistanceX", 13, 3, -1, 1, Q("9.693093 mm")),
    Sketcher.Constraint("DistanceX", 33, 3, -1, 1, Q("9.693093 mm")),
    Sketcher.Constraint("DistanceX", -1, 1, 45, 3, Q("9.693093 mm")),
])
pocket3 = doc.addObject("PartDesign::Pocket", "Pocket002")
body.addObject(pocket3)
pocket3.Profile = sketch5
pocket3.Length = 10
doc.recompute()

fillet = doc.addObject("PartDesign::Fillet", "Fillet")
body.addObject(fillet)
fillet.Base = (pocket3, edges_at(pocket3, [
    (2.5, 30, 60),
    (2.5, 30, -60),
    (2.5, -30, -60),
    (2.5, -30, 60),
]))
fillet.Radius = 3

# Sketch on YZ plane
sketch6 = doc.addObject("Sketcher::SketchObject", "Sketch005")
body.addObject(sketch6)
sketch6.AttachmentSupport = (doc.YZ_Plane, [""])
sketch6.MapMode = "FlatFace"
sketch6.AttachmentOffset = App.Placement(V(0, 0, 5), App.Rotation())
sketch6.addGeometry([
    Part.LineSegment(V(30, 47.5, 0), V(30, 49.5, 0)),  # 0
    Part.ArcOfCircle(Part.Circle(V(30, 48.5, 0), V(0, 0, 1), 1), math.radians(90), math.radians(270)),  # 1
    Part.LineSegment(V(30, 30.5, 0), V(30, 32.5, 0)),  # 2
    Part.ArcOfCircle(Part.Circle(V(30, 31.5, 0), V(0, 0, 1), 1), math.radians(90), math.radians(270)),  # 3
    Part.LineSegment(V(30, 7.5, 0), V(30, 9.5, 0)),  # 4
    Part.ArcOfCircle(Part.Circle(V(30, 8.5, 0), V(0, 0, 1), 1), math.radians(90), math.radians(270)),  # 5
    Part.LineSegment(V(30, -9.5, 0), V(30, -7.5, 0)),  # 6
    Part.ArcOfCircle(Part.Circle(V(30, -8.5, 0), V(0, 0, 1), 1), math.radians(90), math.radians(270)),  # 7
    Part.LineSegment(V(30, -32.5, 0), V(30, -30.5, 0)),  # 8
    Part.ArcOfCircle(Part.Circle(V(30, -31.5, 0), V(0, 0, 1), 1), math.radians(90), math.radians(270)),  # 9
    Part.LineSegment(V(30, -49.5, 0), V(30, -47.5, 0)),  # 10
    Part.ArcOfCircle(Part.Circle(V(30, -48.5, 0), V(0, 0, 1), 1), math.radians(90), math.radians(270)),  # 11
    Part.LineSegment(V(-30, -47.5, 0), V(-30, -49.5, 0)),  # 12
    Part.ArcOfCircle(Part.Circle(V(-30, -48.5, 0), V(0, 0, 1), 1), math.radians(-90), math.radians(90)),  # 13
    Part.LineSegment(V(-30, -30.5, 0), V(-30, -32.5, 0)),  # 14
    Part.ArcOfCircle(Part.Circle(V(-30, -31.5, 0), V(0, 0, 1), 1), math.radians(-90), math.radians(90)),  # 15
    Part.LineSegment(V(-30, -7.5, 0), V(-30, -9.5, 0)),  # 16
    Part.ArcOfCircle(Part.Circle(V(-30, -8.5, 0), V(0, 0, 1), 1), math.radians(-90), math.radians(90)),  # 17
    Part.LineSegment(V(-30, 9.5, 0), V(-30, 7.5, 0)),  # 18
    Part.ArcOfCircle(Part.Circle(V(-30, 8.5, 0), V(0, 0, 1), 1), math.radians(-90), math.radians(90)),  # 19
    Part.LineSegment(V(-30, 32.5, 0), V(-30, 30.5, 0)),  # 20
    Part.ArcOfCircle(Part.Circle(V(-30, 31.5, 0), V(0, 0, 1), 1), math.radians(-90), math.radians(90)),  # 21
    Part.LineSegment(V(-30, 49.5, 0), V(-30, 47.5, 0)),  # 22
    Part.ArcOfCircle(Part.Circle(V(-30, 48.5, 0), V(0, 0, 1), 1), math.radians(-90), math.radians(90)),  # 23
], False)
sketch6.addConstraint([
    Sketcher.Constraint("Coincident", 0, 1, 1, 2),
    Sketcher.Constraint("Coincident", 1, 1, 0, 2),
    Sketcher.Constraint("Coincident", 2, 1, 3, 2),
    Sketcher.Constraint("Coincident", 3, 1, 2, 2),
    Sketcher.Constraint("Coincident", 4, 1, 5, 2),
    Sketcher.Constraint("Coincident", 5, 1, 4, 2),
    Sketcher.Constraint("Coincident", 6, 1, 7, 2),
    Sketcher.Constraint("Coincident", 7, 1, 6, 2),
    Sketcher.Constraint("Coincident", 8, 1, 9, 2),
    Sketcher.Constraint("Coincident", 9, 1, 8, 2),
    Sketcher.Constraint("Coincident", 10, 1, 11, 2),
    Sketcher.Constraint("Coincident", 11, 1, 10, 2),
    Sketcher.Constraint("Coincident", 12, 1, 13, 2),
    Sketcher.Constraint("Coincident", 13, 1, 12, 2),
    Sketcher.Constraint("Coincident", 14, 1, 15, 2),
    Sketcher.Constraint("Coincident", 15, 1, 14, 2),
    Sketcher.Constraint("Coincident", 16, 1, 17, 2),
    Sketcher.Constraint("Coincident", 17, 1, 16, 2),
    Sketcher.Constraint("Coincident", 18, 1, 19, 2),
    Sketcher.Constraint("Coincident", 19, 1, 18, 2),
    Sketcher.Constraint("Coincident", 20, 1, 21, 2),
    Sketcher.Constraint("Coincident", 21, 1, 20, 2),
    Sketcher.Constraint("Coincident", 22, 1, 23, 2),
    Sketcher.Constraint("Coincident", 23, 1, 22, 2),
    Sketcher.Constraint("Vertical", 0),
    Sketcher.Constraint("Vertical", 2),
    Sketcher.Constraint("Vertical", 4),
    Sketcher.Constraint("Vertical", 6),
    Sketcher.Constraint("Vertical", 8),
    Sketcher.Constraint("Vertical", 10),
    Sketcher.Constraint("Vertical", 12),
    Sketcher.Constraint("Vertical", 14),
    Sketcher.Constraint("Vertical", 16),
    Sketcher.Constraint("Vertical", 18),
    Sketcher.Constraint("Vertical", 20),
    Sketcher.Constraint("Vertical", 22),
    Sketcher.Constraint("Equal", 1, 3),
    Sketcher.Constraint("Equal", 3, 5),
    Sketcher.Constraint("Equal", 5, 7),
    Sketcher.Constraint("Equal", 7, 9),
    Sketcher.Constraint("Equal", 9, 11),
    Sketcher.Constraint("Equal", 11, 13),
    Sketcher.Constraint("Equal", 13, 15),
    Sketcher.Constraint("Equal", 15, 17),
    Sketcher.Constraint("Equal", 17, 19),
    Sketcher.Constraint("Equal", 19, 21),
    Sketcher.Constraint("Equal", 21, 23),
    Sketcher.Constraint("Symmetric", 1, 3, 13, 3, -1, 1),
    Sketcher.Constraint("Symmetric", 3, 3, 15, 3, -1, 1),
    Sketcher.Constraint("Symmetric", 5, 3, 17, 3, -1, 1),
    Sketcher.Constraint("Symmetric", 7, 3, 19, 3, -1, 1),
    Sketcher.Constraint("Symmetric", 9, 3, 21, 3, -1, 1),
    Sketcher.Constraint("Symmetric", 11, 3, 23, 3, -1, 1),
    Sketcher.Constraint("Symmetric", 11, 3, 13, 3, -2),
    Sketcher.Constraint("Symmetric", 9, 3, 15, 3, -2),
    Sketcher.Constraint("Symmetric", 7, 3, 17, 3, -2),
    Sketcher.Constraint("Vertical", 1, 3, 3, 3),
    Sketcher.Constraint("Vertical", 3, 3, 5, 3),
    Sketcher.Constraint("Vertical", 11, 3, 0, 1),
    Sketcher.Constraint("Vertical", 1, 1, 2, 1),
    Sketcher.Constraint("Vertical", 3, 1, 4, 1),
    Sketcher.Constraint("Vertical", 5, 1, 6, 1),
    Sketcher.Constraint("Vertical", 7, 1, 8, 1),
    Sketcher.Constraint("Vertical", 9, 1, 10, 1),
    Sketcher.Constraint("Vertical", 23, 3, 12, 1),
    Sketcher.Constraint("Vertical", 13, 1, 14, 1),
    Sketcher.Constraint("Vertical", 15, 1, 16, 1),
    Sketcher.Constraint("Vertical", 17, 1, 18, 1),
    Sketcher.Constraint("Vertical", 19, 1, 20, 1),
    Sketcher.Constraint("Vertical", 21, 1, 22, 1),
    Sketcher.Constraint("Radius", 1, Q("1 mm")),
    Sketcher.Constraint("DistanceX", -1, 1, 1, 3, Q("30 mm")),
    Sketcher.Constraint("DistanceY", 3, 3, 1, 3, Q("17 mm")),
    Sketcher.Constraint("DistanceY", 5, 3, 3, 3, Q("23 mm")),
    Sketcher.Constraint("DistanceY", 7, 3, 5, 3, Q("17 mm")),
])
pocket4 = doc.addObject("PartDesign::Pocket", "Pocket003")
body.addObject(pocket4)
pocket4.Profile = sketch6
pocket4.Length = 10
doc.recompute()

fillet2 = doc.addObject("PartDesign::Fillet", "Fillet001")
body.addObject(fillet2)
fillet2.Base = (pocket4, edges_at(pocket4, [
    (2.5, -15, 23.5),
    (2.5, -15, 16.5),
    (2.5, -15, -16.5),
    (2.5, -15, -23.5),
    (2.5, 15, -23.5),
    (2.5, 15, -16.5),
    (2.5, 15, 16.5),
    (2.5, 15, 23.5),
]))
fillet2.Radius = 2

doc.recompute()
